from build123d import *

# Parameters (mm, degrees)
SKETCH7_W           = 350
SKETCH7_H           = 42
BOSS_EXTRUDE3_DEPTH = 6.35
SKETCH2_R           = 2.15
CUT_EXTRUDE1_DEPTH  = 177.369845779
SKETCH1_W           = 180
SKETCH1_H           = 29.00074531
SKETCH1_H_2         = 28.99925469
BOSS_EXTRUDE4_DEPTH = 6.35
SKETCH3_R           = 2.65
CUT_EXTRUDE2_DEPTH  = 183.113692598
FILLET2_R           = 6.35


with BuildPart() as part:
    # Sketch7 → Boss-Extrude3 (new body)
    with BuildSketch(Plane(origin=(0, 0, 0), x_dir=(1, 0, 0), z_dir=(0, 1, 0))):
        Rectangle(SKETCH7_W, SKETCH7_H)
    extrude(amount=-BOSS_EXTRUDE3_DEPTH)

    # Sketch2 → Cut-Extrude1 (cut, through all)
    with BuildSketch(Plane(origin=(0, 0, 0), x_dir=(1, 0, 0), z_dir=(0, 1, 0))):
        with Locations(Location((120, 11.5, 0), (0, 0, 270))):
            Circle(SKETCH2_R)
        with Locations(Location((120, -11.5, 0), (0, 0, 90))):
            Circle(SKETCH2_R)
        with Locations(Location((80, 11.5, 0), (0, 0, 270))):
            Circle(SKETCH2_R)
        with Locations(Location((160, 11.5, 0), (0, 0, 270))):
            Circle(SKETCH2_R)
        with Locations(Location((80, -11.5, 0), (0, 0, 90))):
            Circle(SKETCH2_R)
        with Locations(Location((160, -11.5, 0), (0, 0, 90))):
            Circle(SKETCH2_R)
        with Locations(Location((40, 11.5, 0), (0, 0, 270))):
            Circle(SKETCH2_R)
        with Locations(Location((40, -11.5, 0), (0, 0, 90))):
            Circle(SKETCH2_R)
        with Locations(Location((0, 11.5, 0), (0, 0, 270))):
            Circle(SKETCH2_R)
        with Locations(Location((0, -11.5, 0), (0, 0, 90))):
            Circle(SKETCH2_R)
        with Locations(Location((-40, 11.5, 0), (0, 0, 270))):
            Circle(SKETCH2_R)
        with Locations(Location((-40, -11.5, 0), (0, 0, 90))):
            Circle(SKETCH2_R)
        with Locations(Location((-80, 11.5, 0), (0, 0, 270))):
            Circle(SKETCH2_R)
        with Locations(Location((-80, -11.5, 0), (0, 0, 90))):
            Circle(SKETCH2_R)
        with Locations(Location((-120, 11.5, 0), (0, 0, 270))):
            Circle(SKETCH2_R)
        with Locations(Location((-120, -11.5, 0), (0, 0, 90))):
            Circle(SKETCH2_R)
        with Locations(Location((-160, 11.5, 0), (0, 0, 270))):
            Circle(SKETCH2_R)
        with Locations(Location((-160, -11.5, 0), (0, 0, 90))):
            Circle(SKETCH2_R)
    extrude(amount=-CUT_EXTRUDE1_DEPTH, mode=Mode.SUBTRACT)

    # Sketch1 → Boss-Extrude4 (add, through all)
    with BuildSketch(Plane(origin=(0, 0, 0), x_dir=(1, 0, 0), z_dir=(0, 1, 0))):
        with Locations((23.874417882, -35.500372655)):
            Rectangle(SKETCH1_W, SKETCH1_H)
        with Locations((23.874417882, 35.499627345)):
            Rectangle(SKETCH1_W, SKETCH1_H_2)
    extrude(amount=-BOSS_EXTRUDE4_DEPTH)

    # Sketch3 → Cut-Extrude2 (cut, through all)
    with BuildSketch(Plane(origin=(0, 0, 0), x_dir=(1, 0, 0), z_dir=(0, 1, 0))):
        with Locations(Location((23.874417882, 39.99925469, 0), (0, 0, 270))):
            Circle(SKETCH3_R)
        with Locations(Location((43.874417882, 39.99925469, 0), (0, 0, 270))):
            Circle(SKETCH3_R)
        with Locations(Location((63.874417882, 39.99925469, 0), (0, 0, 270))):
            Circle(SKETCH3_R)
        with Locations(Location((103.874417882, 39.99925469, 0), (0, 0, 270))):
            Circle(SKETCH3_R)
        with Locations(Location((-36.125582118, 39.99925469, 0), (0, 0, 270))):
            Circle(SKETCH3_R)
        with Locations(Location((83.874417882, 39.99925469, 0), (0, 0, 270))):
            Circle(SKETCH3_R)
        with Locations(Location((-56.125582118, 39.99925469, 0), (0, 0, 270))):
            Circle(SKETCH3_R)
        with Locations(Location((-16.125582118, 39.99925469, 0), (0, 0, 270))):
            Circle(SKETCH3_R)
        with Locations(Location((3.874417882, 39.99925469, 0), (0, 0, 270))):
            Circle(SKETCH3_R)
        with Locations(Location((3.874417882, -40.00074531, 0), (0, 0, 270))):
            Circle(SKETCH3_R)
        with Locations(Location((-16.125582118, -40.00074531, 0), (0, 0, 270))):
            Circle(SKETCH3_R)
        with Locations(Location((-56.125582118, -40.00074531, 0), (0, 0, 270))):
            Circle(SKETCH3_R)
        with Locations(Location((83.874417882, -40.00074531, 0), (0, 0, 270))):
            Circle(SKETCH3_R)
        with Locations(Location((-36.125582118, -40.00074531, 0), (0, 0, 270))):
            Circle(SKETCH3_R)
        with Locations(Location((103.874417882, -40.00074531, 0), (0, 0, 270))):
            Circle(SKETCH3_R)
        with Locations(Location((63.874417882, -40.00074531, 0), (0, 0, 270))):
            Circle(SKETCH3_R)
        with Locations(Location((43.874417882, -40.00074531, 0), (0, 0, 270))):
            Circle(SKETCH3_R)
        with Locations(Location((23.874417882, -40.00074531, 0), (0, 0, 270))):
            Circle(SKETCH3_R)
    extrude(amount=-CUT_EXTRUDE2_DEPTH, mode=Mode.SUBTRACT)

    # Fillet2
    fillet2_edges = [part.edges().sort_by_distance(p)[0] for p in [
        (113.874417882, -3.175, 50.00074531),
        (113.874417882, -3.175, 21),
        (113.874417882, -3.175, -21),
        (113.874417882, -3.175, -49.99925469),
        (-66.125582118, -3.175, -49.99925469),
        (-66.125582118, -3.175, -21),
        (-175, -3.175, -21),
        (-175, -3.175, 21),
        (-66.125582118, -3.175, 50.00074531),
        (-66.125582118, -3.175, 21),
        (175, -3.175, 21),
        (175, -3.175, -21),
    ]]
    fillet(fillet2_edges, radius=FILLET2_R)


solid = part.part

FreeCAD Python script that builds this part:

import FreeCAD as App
import Part
import Sketcher
from FreeCAD import Vector


def edges_at(feature, points):
    """Names of the edges that pass closest to the given points."""
    edges = feature.Shape.Edges
    near = lambda p: min(range(len(edges)), key=lambda i: edges[i].distToShape(Part.Vertex(*p))[0])
    return sorted({f"Edge{near(p) + 1}" for p in points})


def add_polygon(sketch, points):
    """Adds a closed chain of lines whose ends are joined by coincident constraints."""
    first, n = sketch.GeometryCount, len(points)
    for a, b in zip(points, points[1:] + points[:1]):
        sketch.addGeometry(Part.LineSegment(App.Vector(*a, 0), App.Vector(*b, 0)), False)
    for i in range(n):
        sketch.addConstraint(Sketcher.Constraint("Coincident", first + i, 2, first + (i + 1) % n, 1))

doc = App.newDocument("Part")
body = doc.addObject("PartDesign::Body", "Body")

# Sketch on XZ plane
sketch1 = body.newObject("Sketcher::SketchObject", "Sketch")
sketch1.AttachmentSupport = (doc.getObject("XZ_Plane"), [""])
sketch1.MapMode = "FlatFace"
add_polygon(sketch1, [(-175, -21), (-175, 21), (175, 21), (175, -21)])  # lines 0-3
sketch1.addConstraint(Sketcher.Constraint("Vertical", 0))
sketch1.addConstraint(Sketcher.Constraint("Horizontal", 1))
sketch1.addConstraint(Sketcher.Constraint("Vertical", 2))
sketch1.addConstraint(Sketcher.Constraint("Horizontal", 3))
sketch1.addConstraint(Sketcher.Constraint("Symmetric", 0, 2, 2, 2, -1, 1))
sketch1.addConstraint(Sketcher.Constraint("DistanceX", 1, 1, 1, 2, 350.0))
sketch1.addConstraint(Sketcher.Constraint("DistanceY", 0, 1, 0, 2, 42.0))
pad1 = body.newObject("PartDesign::Pad", "Pad")
pad1.Profile = sketch1
pad1.Length = 6.35

# Sketch on XZ plane
sketch2 = body.newObject("Sketcher::SketchObject", "Sketch001")
sketch2.AttachmentSupport = (doc.getObject("XZ_Plane"), [""])
sketch2.MapMode = "FlatFace"
sketch2.addGeometry(Part.Circle(Vector(120, -11.5, 0), Vector(0, 0, 1), 2.15), False)
sketch2.addGeometry(Part.Circle(Vector(120, 11.5, 0), Vector(0, 0, 1), 2.15), False)
sketch2.addGeometry(Part.Circle(Vector(80, -11.5, 0), Vector(0, 0, 1), 2.15), False)
sketch2.addGeometry(Part.Circle(Vector(160, -11.5, 0), Vector(0, 0, 1), 2.15), False)
sketch2.addGeometry(Part.Circle(Vector(80, 11.5, 0), Vector(0, 0, 1), 2.15), False)
sketch2.addGeometry(Part.Circle(Vector(160, 11.5, 0), Vector(0, 0, 1), 2.15), False)
sketch2.addGeometry(Part.Circle(Vector(40, -11.5, 0), Vector(0, 0, 1), 2.15), False)
sketch2.addGeometry(Part.Circle(Vector(40, 11.5, 0), Vector(0, 0, 1), 2.15), False)
sketch2.addGeometry(Part.Circle(Vector(0, -11.5, 0), Vector(0, 0, 1), 2.15), False)
sketch2.addGeometry(Part.Circle(Vector(0, 11.5, 0), Vector(0, 0, 1), 2.15), False)
sketch2.addGeometry(Part.Circle(Vector(-40, -11.5, 0), Vector(0, 0, 1), 2.15), False)
sketch2.addGeometry(Part.Circle(Vector(-40, 11.5, 0), Vector(0, 0, 1), 2.15), False)
sketch2.addGeometry(Part.Circle(Vector(-80, -11.5, 0), Vector(0, 0, 1), 2.15), False)
sketch2.addGeometry(Part.Circle(Vector(-80, 11.5, 0), Vector(0, 0, 1), 2.15), False)
sketch2.addGeometry(Part.Circle(Vector(-120, -11.5, 0), Vector(0, 0, 1), 2.15), False)
sketch2.addGeometry(Part.Circle(Vector(-120, 11.5, 0), Vector(0, 0, 1), 2.15), False)
sketch2.addGeometry(Part.Circle(Vector(-160, -11.5, 0), Vector(0, 0, 1), 2.15), False)
sketch2.addGeometry(Part.Circle(Vector(-160, 11.5, 0), Vector(0, 0, 1), 2.15), False)
sketch2.addConstraint(Sketcher.Constraint("Equal", 0, 1))
sketch2.addConstraint(Sketcher.Constraint("Equal", 1, 2))
sketch2.addConstraint(Sketcher.Constraint("Equal", 2, 3))
sketch2.addConstraint(Sketcher.Constraint("Equal", 3, 4))
sketch2.addConstraint(Sketcher.Constraint("Equal", 4, 5))
sketch2.addConstraint(Sketcher.Constraint("Equal", 5, 6))
sketch2.addConstraint(Sketcher.Constraint("Equal", 6, 7))
sketch2.addConstraint(Sketcher.Constraint("Equal", 7, 8))
sketch2.addConstraint(Sketcher.Constraint("Equal", 8, 9))
sketch2.addConstraint(Sketcher.Constraint("Equal", 9, 10))
sketch2.addConstraint(Sketcher.Constraint("Equal", 10, 11))
sketch2.addConstraint(Sketcher.Constraint("Equal", 11, 12))
sketch2.addConstraint(Sketcher.Constraint("Equal", 12, 13))
sketch2.addConstraint(Sketcher.Constraint("Equal", 13, 14))
sketch2.addConstraint(Sketcher.Constraint("Equal", 14, 15))
sketch2.addConstraint(Sketcher.Constraint("Equal", 15, 16))
sketch2.addConstraint(Sketcher.Constraint("Equal", 16, 17))
sketch2.addConstraint(Sketcher.Constraint("Symmetric", 8, 3, 9, 3, -1, 1))
sketch2.addConstraint(Sketcher.Constraint("Symmetric", 7, 3, 10, 3, -1, 1))
sketch2.addConstraint(Sketcher.Constraint("Symmetric", 6, 3, 11, 3, -1, 1))
sketch2.addConstraint(Sketcher.Constraint("Symmetric", 4, 3, 12, 3, -1, 1))
sketch2.addConstraint(Sketcher.Constraint("Symmetric", 2, 3, 13, 3, -1, 1))
sketch2.addConstraint(Sketcher.Constraint("Symmetric", 1, 3, 14, 3, -1, 1))
sketch2.addConstraint(Sketcher.Constraint("Symmetric", 0, 3, 15, 3, -1, 1))
sketch2.addConstraint(Sketcher.Constraint("Symmetric", 5, 3, 16, 3, -1, 1))
sketch2.addConstraint(Sketcher.Constraint("Symmetric", 3, 3, 17, 3, -1, 1))
sketch2.addConstraint(Sketcher.Constraint("Symmetric", 6, 3, 10, 3, -2))
sketch2.addConstraint(Sketcher.Constraint("Symmetric", 2, 3, 12, 3, -2))
sketch2.addConstraint(Sketcher.Constraint("Symmetric", 0, 3, 14, 3, -2))
sketch2.addConstraint(Sketcher.Constraint("Symmetric", 3, 3, 16, 3, -2))
sketch2.addConstraint(Sketcher.Constraint("PointOnObject", 8, 3, -2))
sketch2.addConstraint(Sketcher.Constraint("Horizontal", 0, 3, 2, 3))
sketch2.addConstraint(Sketcher.Constraint("Horizontal", 2, 3, 3, 3))
sketch2.addConstraint(Sketcher.Constraint("Horizontal", 3, 3, 6, 3))
sketch2.addConstraint(Sketcher.Constraint("Horizontal", 6, 3, 8, 3))
sketch2.addConstraint(Sketcher.Constraint("Diameter", 0, 4.3))
sketch2.addConstraint(Sketcher.Constraint("DistanceX", -1, 1, 0, 3, 120.0))
sketch2.addConstraint(Sketcher.Constraint("DistanceX", -1, 1, 2, 3, 80.0))
sketch2.addConstraint(Sketcher.Constraint("DistanceX", -1, 1, 3, 3, 160.0))
sketch2.addConstraint(Sketcher.Constraint("DistanceX", -1, 1, 6, 3, 40.0))
sketch2.addConstraint(Sketcher.Constraint("DistanceY", 0, 3, 1, 3, 23.0))
pocket1 = body.newObject("PartDesign::Pocket", "Pocket")
pocket1.Profile = sketch2
pocket1.Type = "ThroughAll"
pocket1.Reversed = True

# Sketch on XZ plane
sketch3 = body.newObject("Sketcher::SketchObject", "Sketch002")
sketch3.AttachmentSupport = (doc.getObject("XZ_Plane"), [""])
sketch3.MapMode = "FlatFace"
add_polygon(sketch3, [(-66.125582, 21), (-66.125582, 50.000745), (113.874418, 50.000745), (113.874418, 21)])  # lines 0-3
add_polygon(sketch3, [(-66.125582, -49.999255), (-66.125582, -21), (113.874418, -21), (113.874418, -49.999255)])  # lines 4-7
sketch3.addConstraint(Sketcher.Constraint("Vertical", 0))
sketch3.addConstraint(Sketcher.Constraint("Horizontal", 1))
sketch3.addConstraint(Sketcher.Constraint("Vertical", 2))
sketch3.addConstraint(Sketcher.Constraint("Horizontal", 3))
sketch3.addConstraint(Sketcher.Constraint("Vertical", 4))
sketch3.addConstraint(Sketcher.Constraint("Horizontal", 5))
sketch3.addConstraint(Sketcher.Constraint("Vertical", 6))
sketch3.addConstraint(Sketcher.Constraint("Horizontal", 7))
sketch3.addConstraint(Sketcher.Constraint("Symmetric", 3, 2, 4, 2, -1))
sketch3.addConstraint(Sketcher.Constraint("Vertical", 2, 2, 5, 2))
sketch3.addConstraint(Sketcher.Constraint("DistanceX", 1, 1, 1, 2, 180.0))
sketch3.addConstraint(Sketcher.Constraint("DistanceY", -1, 1, 2, 2, 21.0))
sketch3.addConstraint(Sketcher.Constraint("DistanceY", 6, 2, 1, 2, 100.0))
sketch3.addConstraint(Sketcher.Constraint("DistanceY", 0, 1, 0, 2, 29.000745))
sketch3.addConstraint(Sketcher.Constraint("DistanceX", 0, 2, -1, 1, 66.125582))
pad2 = body.newObject("PartDesign::Pad", "Pad001")
pad2.Profile = sketch3
pad2.Type = "UpToLast"

# Sketch on XZ plane
sketch4 = body.newObject("Sketcher::SketchObject", "Sketch003")
sketch4.AttachmentSupport = (doc.getObject("XZ_Plane"), [""])
sketch4.MapMode = "FlatFace"
sketch4.addGeometry(Part.Circle(Vector(23.874418, -39.999255, 0), Vector(0, 0, 1), 2.65), False)
sketch4.addGeometry(Part.Circle(Vector(43.874418, -39.999255, 0), Vector(0, 0, 1), 2.65), False)
sketch4.addGeometry(Part.Circle(Vector(63.874418, -39.999255, 0), Vector(0, 0, 1), 2.65), False)
sketch4.addGeometry(Part.Circle(Vector(103.874418, -39.999255, 0), Vector(0, 0, 1), 2.65), False)
sketch4.addGeometry(Part.Circle(Vector(-36.125582, -39.999255, 0), Vector(0, 0, 1), 2.65), False)
sketch4.addGeometry(Part.Circle(Vector(83.874418, -39.999255, 0), Vector(0, 0, 1), 2.65), False)
sketch4.addGeometry(Part.Circle(Vector(-56.125582, -39.999255, 0), Vector(0, 0, 1), 2.65), False)
sketch4.addGeometry(Part.Circle(Vector(-16.125582, -39.999255, 0), Vector(0, 0, 1), 2.65), False)
sketch4.addGeometry(Part.Circle(Vector(3.874418, -39.999255, 0), Vector(0, 0, 1), 2.65), False)
sketch4.addGeometry(Part.Circle(Vector(3.874418, 40.000745, 0), Vector(0, 0, 1), 2.65), False)
sketch4.addGeometry(Part.Circle(Vector(-16.125582, 40.000745, 0), Vector(0, 0, 1), 2.65), False)
sketch4.addGeometry(Part.Circle(Vector(-56.125582, 40.000745, 0), Vector(0, 0, 1), 2.65), False)
sketch4.addGeometry(Part.Circle(Vector(83.874418, 40.000745, 0), Vector(0, 0, 1), 2.65), False)
sketch4.addGeometry(Part.Circle(Vector(-36.125582, 40.000745, 0), Vector(0, 0, 1), 2.65), False)
sketch4.addGeometry(Part.Circle(Vector(103.874418, 40.000745, 0), Vector(0, 0, 1), 2.65), False)
sketch4.addGeometry(Part.Circle(Vector(63.874418, 40.000745, 0), Vector(0, 0, 1), 2.65), False)
sketch4.addGeometry(Part.Circle(Vector(43.874418, 40.000745, 0), Vector(0, 0, 1), 2.65), False)
sketch4.addGeometry(Part.Circle(Vector(23.874418, 40.000745, 0), Vector(0, 0, 1), 2.65), False)
sketch4.addConstraint(Sketcher.Constraint("Equal", 0, 1))
sketch4.addConstraint(Sketcher.Constraint("Equal", 1, 2))
sketch4.addConstraint(Sketcher.Constraint("Equal", 2, 3))
sketch4.addConstraint(Sketcher.Constraint("Equal", 3, 4))
sketch4.addConstraint(Sketcher.Constraint("Equal", 4, 5))
sketch4.addConstraint(Sketcher.Constraint("Equal", 5, 6))
sketch4.addConstraint(Sketcher.Constraint("Equal", 6, 7))
sketch4.addConstraint(Sketcher.Constraint("Equal", 7, 8))
sketch4.addConstraint(Sketcher.Constraint("Equal", 8, 9))
sketch4.addConstraint(Sketcher.Constraint("Equal", 9, 10))
sketch4.addConstraint(Sketcher.Constraint("Equal", 10, 11))
sketch4.addConstraint(Sketcher.Constraint("Equal", 11, 12))
sketch4.addConstraint(Sketcher.Constraint("Equal", 12, 13))
sketch4.addConstraint(Sketcher.Constraint("Equal", 13, 14))
sketch4.addConstraint(Sketcher.Constraint("Equal", 14, 15))
sketch4.addConstraint(Sketcher.Constraint("Equal", 15, 16))
sketch4.addConstraint(Sketcher.Constraint("Equal", 16, 17))
sketch4.addConstraint(Sketcher.Constraint("Horizontal", 0, 3, 1, 3))
sketch4.addConstraint(Sketcher.Constraint("Horizontal", 1, 3, 2, 3))
sketch4.addConstraint(Sketcher.Constraint("Horizontal", 2, 3, 3, 3))
sketch4.addConstraint(Sketcher.Constraint("Horizontal", 3, 3, 4, 3))
sketch4.addConstraint(Sketcher.Constraint("Horizontal", 4, 3, 5, 3))
sketch4.addConstraint(Sketcher.Constraint("Horizontal", 5, 3, 6, 3))
sketch4.addConstraint(Sketcher.Constraint("Horizontal", 6, 3, 7, 3))
sketch4.addConstraint(Sketcher.Constraint("Horizontal", 7, 3, 8, 3))
sketch4.addConstraint(Sketcher.Constraint("Horizontal", 9, 3, 10, 3))
sketch4.addConstraint(Sketcher.Constraint("Horizontal", 10, 3, 11, 3))
sketch4.addConstraint(Sketcher.Constraint("Horizontal", 11, 3, 12, 3))
sketch4.addConstraint(Sketcher.Constraint("Horizontal", 12, 3, 13, 3))
sketch4.addConstraint(Sketcher.Constraint("Horizontal", 13, 3, 14, 3))
sketch4.addConstraint(Sketcher.Constraint("Horizontal", 14, 3, 15, 3))
sketch4.addConstraint(Sketcher.Constraint("Horizontal", 15, 3, 16, 3))
sketch4.addConstraint(Sketcher.Constraint("Horizontal", 16, 3, 17, 3))
sketch4.addConstraint(Sketcher.Constraint("Vertical", 8, 3, 9, 3))
sketch4.addConstraint(Sketcher.Constraint("Vertical", 7, 3, 10, 3))
sketch4.addConstraint(Sketcher.Constraint("Vertical", 6, 3, 11, 3))
sketch4.addConstraint(Sketcher.Constraint("Vertical", 5, 3, 12, 3))
sketch4.addConstraint(Sketcher.Constraint("Vertical", 4, 3, 13, 3))
sketch4.addConstraint(Sketcher.Constraint("Vertical", 3, 3, 14, 3))
sketch4.addConstraint(Sketcher.Constraint("Vertical", 2, 3, 15, 3))
sketch4.addConstraint(Sketcher.Constraint("Vertical", 1, 3, 16, 3))
sketch4.addConstraint(Sketcher.Constraint("Vertical", 0, 3, 17, 3))
sketch4.addConstraint(Sketcher.Constraint("Diameter", 0, 5.3))
sketch4.addConstraint(Sketcher.Constraint("DistanceX", 0, 3, 1, 3, 20.0))
sketch4.addConstraint(Sketcher.Constraint("DistanceX", 1, 3, 2, 3, 20.0))
sketch4.addConstraint(Sketcher.Constraint("DistanceX", 2, 3, 3, 3, 40.0))
sketch4.addConstraint(Sketcher.Constraint("DistanceX", 4, 3, 0, 3, 60.0))
sketch4.addConstraint(Sketcher.Constraint("DistanceX", 2, 3, 5, 3, 20.0))
sketch4.addConstraint(Sketcher.Constraint("DistanceX", 6, 3, 4, 3, 20.0))
sketch4.addConstraint(Sketcher.Constraint("DistanceX", 4, 3, 7, 3, 20.0))
sketch4.addConstraint(Sketcher.Constraint("DistanceX", 8, 3, 0, 3, 20.0))
sketch4.addConstraint(Sketcher.Constraint("DistanceY", 8, 3, 9, 3, 80.0))
sketch4.addConstraint(Sketcher.Constraint("DistanceX", -1, 1, 0, 3, 23.874418))
sketch4.addConstraint(Sketcher.Constraint("DistanceY", 0, 3, -1, 1, 39.999255))
pocket2 = body.newObject("PartDesign::Pocket", "Pocket001")
pocket2.Profile = sketch4
pocket2.Type = "ThroughAll"
pocket2.Reversed = True
doc.recompute()

fillet = body.newObject("PartDesign::Fillet", "Fillet")
fillet.Base = (pocket2, edges_at(pocket2, [
    (113.874, -3.175, 50.001),
    (113.874, -3.175, 21),
    (113.874, -3.175, -21),
    (113.874, -3.175, -49.999),
    (-66.126, -3.175, -49.999),
    (-66.126, -3.175, -21),
    (-175, -3.175, -21),
    (-175, -3.175, 21),
    (-66.126, -3.175, 50.001),
    (-66.126, -3.175, 21),
    (175, -3.175, 21),
    (175, -3.175, -21),
]))
fillet.Radius = 6.35

doc.recompute()
